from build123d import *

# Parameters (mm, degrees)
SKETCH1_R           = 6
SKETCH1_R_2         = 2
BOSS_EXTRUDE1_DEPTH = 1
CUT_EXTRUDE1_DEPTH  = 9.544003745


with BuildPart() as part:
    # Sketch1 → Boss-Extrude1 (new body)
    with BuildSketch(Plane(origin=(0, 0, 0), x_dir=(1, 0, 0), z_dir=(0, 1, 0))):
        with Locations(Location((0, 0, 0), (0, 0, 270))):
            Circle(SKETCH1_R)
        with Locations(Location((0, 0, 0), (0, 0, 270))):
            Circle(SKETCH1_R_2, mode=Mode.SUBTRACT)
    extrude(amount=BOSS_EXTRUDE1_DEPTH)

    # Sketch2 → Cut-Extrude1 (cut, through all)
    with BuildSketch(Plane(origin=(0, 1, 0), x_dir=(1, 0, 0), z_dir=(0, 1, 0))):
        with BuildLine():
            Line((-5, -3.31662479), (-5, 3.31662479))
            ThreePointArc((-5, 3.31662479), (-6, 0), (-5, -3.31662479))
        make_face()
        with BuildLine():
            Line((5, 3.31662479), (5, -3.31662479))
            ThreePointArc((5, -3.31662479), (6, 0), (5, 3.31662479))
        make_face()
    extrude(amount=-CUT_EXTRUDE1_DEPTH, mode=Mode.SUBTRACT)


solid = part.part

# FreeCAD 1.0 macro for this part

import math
import FreeCAD as App
import Part
import Sketcher
from FreeCAD import Vector

doc = App.newDocument("Part")
body = doc.addObject("PartDesign::Body", "Body")

sketch1 = doc.addObject("Sketcher::SketchObject", "Sketch")
body.addObject(sketch1)
sketch1.AttachmentSupport = (doc.XZ_Plane, [""])
sketch1.MapMode = "FlatFace"
sketch1.addGeometry([
    Part.Circle(Vector(0, 0, 0), Vector(0, 0, 1), 6),
    Part.Circle(Vector(0, 0, 0), Vector(0, 0, 1), 2),
], False)
sketch1.addConstraint([
    Sketcher.Constraint("Coincident", 0, 3, -1, 1),
    Sketcher.Constraint("Coincident", 1, 3, -1, 1),
    Sketcher.Constraint("Diameter", 0, 12.0),
    Sketcher.Constraint("Diameter", 1, 4.0),
])
pad1 = doc.addObject("PartDesign::Pad", "Pad")
body.addObject(pad1)
pad1.Profile = sketch1
pad1.Length = 1
pad1.Reversed = True

sketch2 = doc.addObject("Sketcher::SketchObject", "Sketch001")
body.addObject(sketch2)
sketch2.AttachmentSupport = (doc.XZ_Plane, [""])
sketch2.MapMode = "FlatFace"
sketch2.AttachmentOffset = App.Placement(Vector(0, 0, -1), App.Rotation())
sketch2.addGeometry([
    Part.LineSegment(Vector(-5, 3, 0), Vector(-5, -3, 0)),
    Part.ArcOfCircle(Part.Circle(Vector(0, 0, 0), Vector(0, 0, 1), 6), math.radians(146), math.radians(214)),
    Part.LineSegment(Vector(5, -3, 0), Vector(5, 3, 0)),
    Part.ArcOfCircle(Part.Circle(Vector(0, 0, 0), Vector(0, 0, 1), 6), math.radians(-34), math.radians(34)),
], False)
sketch2.addConstraint([
    Sketcher.Constraint("Coincident", 0, 1, 1, 1),
    Sketcher.Constraint("Coincident", 1, 2, 0, 2),
    Sketcher.Constraint("Coincident", 2, 1, 3, 1),
    Sketcher.Constraint("Coincident", 3, 2, 2, 2),
    Sketcher.Constraint("Vertical", 0),
    Sketcher.Constraint("Vertical", 2),
    Sketcher.Constraint("Coincident", 1, 3, -1, 1),
    Sketcher.Constraint("Coincident", 3, 3, -1, 1),
    Sketcher.Constraint("Equal", 1, 3),
    Sketcher.Constraint("Horizontal", 1, 2, 2, 1),
    Sketcher.Constraint("Radius", 1, 6.0),
    Sketcher.Constraint("DistanceX", 0, 1, -1, 1, 5.0),
])
pocket1 = doc.addObject("PartDesign::Pocket", "Pocket")
body.addObject(pocket1)
pocket1.Profile = sketch2
pocket1.Type = "ThroughAll"
pocket1.Reversed = True

doc.recompute()
